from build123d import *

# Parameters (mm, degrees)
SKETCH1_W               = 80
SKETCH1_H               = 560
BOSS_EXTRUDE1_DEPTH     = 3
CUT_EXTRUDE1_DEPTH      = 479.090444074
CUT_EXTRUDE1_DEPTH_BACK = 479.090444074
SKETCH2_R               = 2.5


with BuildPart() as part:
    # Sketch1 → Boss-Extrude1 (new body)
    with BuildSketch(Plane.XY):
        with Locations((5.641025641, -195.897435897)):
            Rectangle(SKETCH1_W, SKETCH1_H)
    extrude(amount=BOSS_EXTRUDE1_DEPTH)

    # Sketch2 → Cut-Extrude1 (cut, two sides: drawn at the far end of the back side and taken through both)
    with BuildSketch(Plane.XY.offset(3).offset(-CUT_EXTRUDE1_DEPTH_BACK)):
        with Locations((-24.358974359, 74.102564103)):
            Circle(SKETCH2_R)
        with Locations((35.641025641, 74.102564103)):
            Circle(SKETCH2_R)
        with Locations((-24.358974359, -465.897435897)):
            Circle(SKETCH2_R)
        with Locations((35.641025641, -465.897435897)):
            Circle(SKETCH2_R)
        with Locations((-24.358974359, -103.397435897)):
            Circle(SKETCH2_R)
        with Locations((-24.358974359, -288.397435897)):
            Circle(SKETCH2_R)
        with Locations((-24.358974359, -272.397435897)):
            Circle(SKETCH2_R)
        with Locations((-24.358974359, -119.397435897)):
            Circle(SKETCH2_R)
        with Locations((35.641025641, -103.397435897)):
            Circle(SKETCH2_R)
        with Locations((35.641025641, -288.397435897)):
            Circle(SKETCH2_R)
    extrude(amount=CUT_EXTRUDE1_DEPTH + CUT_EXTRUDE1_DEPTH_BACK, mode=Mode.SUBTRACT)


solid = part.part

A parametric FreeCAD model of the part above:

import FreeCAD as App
import Part
import Sketcher
from FreeCAD import Vector
Q = App.Units.Quantity


def add_polygon(sketch, points):
    """Adds a closed chain of lines whose ends are joined by coincident constraints."""
    first, n = sketch.GeometryCount, len(points)
    for a, b in zip(points, points[1:] + points[:1]):
        sketch.addGeometry(Part.LineSegment(App.Vector(*a, 0), App.Vector(*b, 0)), False)
    for i in range(n):
        sketch.addConstraint(Sketcher.Constraint("Coincident", first + i, 2, first + (i + 1) % n, 1))

doc = App.newDocument("Part")
body = doc.addObject("PartDesign::Body", "Body")

sketch1 = body.newObject("Sketcher::SketchObject", "Sketch")
sketch1.AttachmentSupport = (doc.getObject("XY_Plane"), [""])
sketch1.MapMode = "FlatFace"
add_polygon(sketch1, [(-34, 84), (-34, -476), (46, -476), (46, 84)])
sketch1.addConstraint(Sketcher.Constraint("Vertical", 0))
sketch1.addConstraint(Sketcher.Constraint("Horizontal", 1))
sketch1.addConstraint(Sketcher.Constraint("Vertical", 2))
sketch1.addConstraint(Sketcher.Constraint("Horizontal", 3))
sketch1.addConstraint(Sketcher.Constraint("DistanceX", 1, 1, 1, 2, Q("80 mm")))
sketch1.addConstraint(Sketcher.Constraint("DistanceY", 0, 2, 0, 1, Q("560 mm")))
sketch1.addConstraint(Sketcher.Constraint("DistanceX", 0, 2, -1, 1, Q("34.358974 mm")))
sketch1.addConstraint(Sketcher.Constraint("DistanceY", 0, 2, -1, 1, Q("475.897436 mm")))
pad1 = body.newObject("PartDesign::Pad", "Pad")
pad1.Profile = sketch1
pad1.Length = 3

sketch2 = body.newObject("Sketcher::SketchObject", "Sketch001")
sketch2.AttachmentSupport = (doc.getObject("XY_Plane"), [""])
sketch2.MapMode = "FlatFace"
sketch2.AttachmentOffset = App.Placement(Vector(0, 0, 3), App.Rotation())
sketch2.addGeometry(Part.Circle(Vector(-24.4, 74.1, 0), Vector(0, 0, 1), 2.5), False)
sketch2.addGeometry(Part.Circle(Vector(35.6, 74.1, 0), Vector(0, 0, 1), 2.5), False)
sketch2.addGeometry(Part.Circle(Vector(-24.4, -465.9, 0), Vector(0, 0, 1), 2.5), False)
sketch2.addGeometry(Part.Circle(Vector(35.6, -465.9, 0), Vector(0, 0, 1), 2.5), False)
sketch2.addGeometry(Part.Circle(Vector(-24.4, -103.4, 0), Vector(0, 0, 1), 2.5), False)
sketch2.addGeometry(Part.Circle(Vector(-24.4, -288.4, 0), Vector(0, 0, 1), 2.5), False)
sketch2.addGeometry(Part.Circle(Vector(-24.4, -272.4, 0), Vector(0, 0, 1), 2.5), False)
sketch2.addGeometry(Part.Circle(Vector(-24.4, -119.4, 0), Vector(0, 0, 1), 2.5), False)
sketch2.addGeometry(Part.Circle(Vector(35.6, -103.4, 0), Vector(0, 0, 1), 2.5), False)
sketch2.addGeometry(Part.Circle(Vector(35.6, -288.4, 0), Vector(0, 0, 1), 2.5), False)
sketch2.addConstraint(Sketcher.Constraint("Equal", 0, 1))
sketch2.addConstraint(Sketcher.Constraint("Equal", 1, 2))
sketch2.addConstraint(Sketcher.Constraint("Equal", 2, 3))
sketch2.addConstraint(Sketcher.Constraint("Equal", 3, 4))
sketch2.addConstraint(Sketcher.Constraint("Equal", 4, 5))
sketch2.addConstraint(Sketcher.Constraint("Equal", 5, 6))
sketch2.addConstraint(Sketcher.Constraint("Equal", 6, 7))
sketch2.addConstraint(Sketcher.Constraint("Equal", 7, 8))
sketch2.addConstraint(Sketcher.Constraint("Equal", 8, 9))
sketch2.addConstraint(Sketcher.Constraint("Horizontal", 0, 3, 1, 3))
sketch2.addConstraint(Sketcher.Constraint("Horizontal", 2, 3, 3, 3))
sketch2.addConstraint(Sketcher.Constraint("Horizontal", 4, 3, 8, 3))
sketch2.addConstraint(Sketcher.Constraint("Horizontal", 5, 3, 9, 3))
sketch2.addConstraint(Sketcher.Constraint("Vertical", 0, 3, 2, 3))
sketch2.addConstraint(Sketcher.Constraint("Vertical", 1, 3, 3, 3))
sketch2.addConstraint(Sketcher.Constraint("Vertical", 2, 3, 4, 3))
sketch2.addConstraint(Sketcher.Constraint("Vertical", 4, 3, 5, 3))
sketch2.addConstraint(Sketcher.Constraint("Vertical", 5, 3, 6, 3))
sketch2.addConstraint(Sketcher.Constraint("Vertical", 6, 3, 7, 3))
sketch2.addConstraint(Sketcher.Constraint("Vertical", 3, 3, 8, 3))
sketch2.addConstraint(Sketcher.Constraint("Vertical", 8, 3, 9, 3))
sketch2.addConstraint(Sketcher.Constraint("Diameter", 0, Q("5 mm")))
sketch2.addConstraint(Sketcher.Constraint("DistanceX", 0, 3, 1, 3, Q("60 mm")))
sketch2.addConstraint(Sketcher.Constraint("DistanceY", 2, 3, 0, 3, Q("540 mm")))
sketch2.addConstraint(Sketcher.Constraint("DistanceY", 5, 3, 4, 3, Q("185 mm")))
sketch2.addConstraint(Sketcher.Constraint("DistanceY", 5, 3, 6, 3, Q("16 mm")))
sketch2.addConstraint(Sketcher.Constraint("DistanceY", 7, 3, 4, 3, Q("16 mm")))
sketch2.addConstraint(Sketcher.Constraint("DistanceY", 4, 3, 0, 3, Q("177.5 mm")))
sketch2.addConstraint(Sketcher.Constraint("DistanceX", 0, 3, -1, 1, Q("24.358974 mm")))
sketch2.addConstraint(Sketcher.Constraint("DistanceY", -1, 1, 0, 3, Q("74.102564 mm")))
pocket1 = body.newObject("PartDesign::Pocket", "Pocket")
pocket1.Profile = sketch2
pocket1.Type = "ThroughAll"
pocket1.Midplane = True

doc.recompute()
